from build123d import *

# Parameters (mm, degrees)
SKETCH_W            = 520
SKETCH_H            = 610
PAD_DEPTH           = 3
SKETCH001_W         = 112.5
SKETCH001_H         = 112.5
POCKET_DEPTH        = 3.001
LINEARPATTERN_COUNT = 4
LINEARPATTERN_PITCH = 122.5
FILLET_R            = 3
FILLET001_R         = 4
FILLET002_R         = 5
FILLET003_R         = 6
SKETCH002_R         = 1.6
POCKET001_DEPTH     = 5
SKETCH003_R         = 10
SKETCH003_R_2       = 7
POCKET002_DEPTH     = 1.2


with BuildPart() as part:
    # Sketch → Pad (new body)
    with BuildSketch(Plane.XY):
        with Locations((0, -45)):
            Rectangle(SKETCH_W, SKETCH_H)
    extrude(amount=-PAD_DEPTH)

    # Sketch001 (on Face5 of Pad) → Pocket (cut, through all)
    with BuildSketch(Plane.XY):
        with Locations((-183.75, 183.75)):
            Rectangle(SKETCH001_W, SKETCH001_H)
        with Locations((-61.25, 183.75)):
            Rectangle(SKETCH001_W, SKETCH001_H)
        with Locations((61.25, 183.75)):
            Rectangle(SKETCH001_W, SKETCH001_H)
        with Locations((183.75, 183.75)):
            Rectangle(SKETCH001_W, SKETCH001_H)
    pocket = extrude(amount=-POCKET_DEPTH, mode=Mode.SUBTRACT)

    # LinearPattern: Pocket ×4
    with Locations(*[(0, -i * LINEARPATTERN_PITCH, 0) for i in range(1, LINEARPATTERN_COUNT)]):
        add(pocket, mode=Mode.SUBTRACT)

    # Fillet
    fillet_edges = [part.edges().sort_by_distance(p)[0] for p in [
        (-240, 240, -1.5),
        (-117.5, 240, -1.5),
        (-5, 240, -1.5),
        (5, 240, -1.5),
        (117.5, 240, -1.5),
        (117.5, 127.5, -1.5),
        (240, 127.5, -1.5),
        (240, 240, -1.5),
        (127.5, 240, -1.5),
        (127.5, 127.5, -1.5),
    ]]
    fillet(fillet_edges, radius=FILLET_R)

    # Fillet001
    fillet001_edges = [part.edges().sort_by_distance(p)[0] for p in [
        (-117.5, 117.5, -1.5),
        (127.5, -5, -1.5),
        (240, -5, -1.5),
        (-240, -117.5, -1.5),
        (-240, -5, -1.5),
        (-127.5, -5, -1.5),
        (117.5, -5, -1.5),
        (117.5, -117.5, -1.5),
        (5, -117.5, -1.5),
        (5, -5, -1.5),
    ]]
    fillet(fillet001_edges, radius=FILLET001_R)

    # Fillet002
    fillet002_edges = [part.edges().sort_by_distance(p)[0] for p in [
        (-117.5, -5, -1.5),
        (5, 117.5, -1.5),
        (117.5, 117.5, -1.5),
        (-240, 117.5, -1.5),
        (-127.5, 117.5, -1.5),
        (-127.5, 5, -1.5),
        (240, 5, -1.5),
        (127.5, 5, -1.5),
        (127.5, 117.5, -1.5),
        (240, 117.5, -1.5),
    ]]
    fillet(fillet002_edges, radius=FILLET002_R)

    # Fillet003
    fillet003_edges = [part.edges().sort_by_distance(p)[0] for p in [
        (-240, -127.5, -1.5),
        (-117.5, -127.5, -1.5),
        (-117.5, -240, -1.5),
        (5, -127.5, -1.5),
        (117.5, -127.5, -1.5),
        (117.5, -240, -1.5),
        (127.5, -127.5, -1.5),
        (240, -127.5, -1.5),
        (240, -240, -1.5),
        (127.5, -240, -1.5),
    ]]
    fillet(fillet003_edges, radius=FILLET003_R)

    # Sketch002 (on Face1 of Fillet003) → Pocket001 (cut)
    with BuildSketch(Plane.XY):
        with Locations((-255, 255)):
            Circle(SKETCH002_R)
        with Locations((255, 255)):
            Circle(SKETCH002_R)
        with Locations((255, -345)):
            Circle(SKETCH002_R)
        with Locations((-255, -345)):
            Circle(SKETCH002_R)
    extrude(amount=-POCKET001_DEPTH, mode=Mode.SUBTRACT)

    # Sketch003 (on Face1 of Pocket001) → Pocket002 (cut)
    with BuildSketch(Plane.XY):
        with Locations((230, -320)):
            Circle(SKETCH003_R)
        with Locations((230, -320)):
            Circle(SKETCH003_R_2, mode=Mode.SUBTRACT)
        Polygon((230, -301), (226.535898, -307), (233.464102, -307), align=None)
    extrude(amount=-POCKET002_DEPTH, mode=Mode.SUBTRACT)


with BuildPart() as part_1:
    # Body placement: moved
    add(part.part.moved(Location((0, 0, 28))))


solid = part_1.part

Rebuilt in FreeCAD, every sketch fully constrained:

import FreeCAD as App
import Part
import Sketcher

V = App.Vector
Q = App.Units.Quantity


def edges_at(feature, points):
    """Names of the edges that pass closest to the given points."""
    edges = feature.Shape.Edges
    near = lambda p: min(range(len(edges)), key=lambda i: edges[i].distToShape(Part.Vertex(*p))[0])
    return sorted({f"Edge{near(p) + 1}" for p in points})

doc = App.newDocument("Part")
body = doc.addObject("PartDesign::Body", "Body")

# Sketch on XY plane
sketch1 = body.newObject("Sketcher::SketchObject", "Sketch")
sketch1.AttachmentSupport = (doc.getObject("XY_Plane"), [""])
sketch1.MapMode = "FlatFace"
sketch1.addGeometry([
    Part.LineSegment(V(-260, 260, 0), V(-260, -350, 0)),
    Part.LineSegment(V(-260, -350, 0), V(260, -350, 0)),
    Part.LineSegment(V(260, -350, 0), V(260, 260, 0)),
    Part.LineSegment(V(260, 260, 0), V(-260, 260, 0)),
], False)
sketch1.addConstraint([
    Sketcher.Constraint("Coincident", 0, 2, 1, 1),
    Sketcher.Constraint("Coincident", 1, 2, 2, 1),
    Sketcher.Constraint("Coincident", 2, 2, 3, 1),
    Sketcher.Constraint("Coincident", 3, 2, 0, 1),
    Sketcher.Constraint("Vertical", 0),
    Sketcher.Constraint("Horizontal", 1),
    Sketcher.Constraint("Vertical", 2),
    Sketcher.Constraint("Horizontal", 3),
    Sketcher.Constraint("DistanceX", 1, 1, 1, 2, Q("520 mm")),
    Sketcher.Constraint("DistanceY", 0, 2, 0, 1, Q("610 mm")),
    Sketcher.Constraint("DistanceX", 0, 2, -1, 1, Q("260 mm")),
    Sketcher.Constraint("DistanceY", 0, 2, -1, 1, Q("350 mm")),
])
pad1 = body.newObject("PartDesign::Pad", "Pad")
pad1.Profile = sketch1
pad1.Length = 3
pad1.Reversed = True

# Sketch on XY plane
sketch2 = body.newObject("Sketcher::SketchObject", "Sketch001")
sketch2.AttachmentSupport = (doc.getObject("XY_Plane"), [""])
sketch2.MapMode = "FlatFace"
sketch2.addGeometry([
    Part.LineSegment(V(-240, 240, 0), V(-240, 128, 0)),  # 0
    Part.LineSegment(V(-240, 128, 0), V(-128, 128, 0)),  # 1
    Part.LineSegment(V(-128, 128, 0), V(-128, 240, 0)),  # 2
    Part.LineSegment(V(-128, 240, 0), V(-240, 240, 0)),  # 3
    Part.LineSegment(V(-118, 240, 0), V(-118, 128, 0)),  # 4
    Part.LineSegment(V(-118, 128, 0), V(-5, 128, 0)),  # 5
    Part.LineSegment(V(-5, 128, 0), V(-5, 240, 0)),  # 6
    Part.LineSegment(V(-5, 240, 0), V(-118, 240, 0)),  # 7
    Part.LineSegment(V(5, 240, 0), V(5, 128, 0)),  # 8
    Part.LineSegment(V(5, 128, 0), V(118, 128, 0)),  # 9
    Part.LineSegment(V(118, 128, 0), V(118, 240, 0)),  # 10
    Part.LineSegment(V(118, 240, 0), V(5, 240, 0)),  # 11
    Part.LineSegment(V(128, 240, 0), V(128, 128, 0)),  # 12
    Part.LineSegment(V(128, 128, 0), V(240, 128, 0)),  # 13
    Part.LineSegment(V(240, 128, 0), V(240, 240, 0)),  # 14
    Part.LineSegment(V(240, 240, 0), V(128, 240, 0)),  # 15
], False)
sketch2.addConstraint([
    Sketcher.Constraint("Coincident", 0, 2, 1, 1),
    Sketcher.Constraint("Coincident", 1, 2, 2, 1),
    Sketcher.Constraint("Coincident", 2, 2, 3, 1),
    Sketcher.Constraint("Coincident", 3, 2, 0, 1),
    Sketcher.Constraint("Coincident", 4, 2, 5, 1),
    Sketcher.Constraint("Coincident", 5, 2, 6, 1),
    Sketcher.Constraint("Coincident", 6, 2, 7, 1),
    Sketcher.Constraint("Coincident", 7, 2, 4, 1),
    Sketcher.Constraint("Coincident", 8, 2, 9, 1),
    Sketcher.Constraint("Coincident", 9, 2, 10, 1),
    Sketcher.Constraint("Coincident", 10, 2, 11, 1),
    Sketcher.Constraint("Coincident", 11, 2, 8, 1),
    Sketcher.Constraint("Coincident", 12, 2, 13, 1),
    Sketcher.Constraint("Coincident", 13, 2, 14, 1),
    Sketcher.Constraint("Coincident", 14, 2, 15, 1),
    Sketcher.Constraint("Coincident", 15, 2, 12, 1),
    Sketcher.Constraint("Vertical", 0),
    Sketcher.Constraint("Horizontal", 1),
    Sketcher.Constraint("Vertical", 2),
    Sketcher.Constraint("Horizontal", 3),
    Sketcher.Constraint("Vertical", 4),
    Sketcher.Constraint("Horizontal", 5),
    Sketcher.Constraint("Vertical", 6),
    Sketcher.Constraint("Horizontal", 7),
    Sketcher.Constraint("Vertical", 8),
    Sketcher.Constraint("Horizontal", 9),
    Sketcher.Constraint("Vertical", 10),
    Sketcher.Constraint("Horizontal", 11),
    Sketcher.Constraint("Vertical", 12),
    Sketcher.Constraint("Horizontal", 13),
    Sketcher.Constraint("Vertical", 14),
    Sketcher.Constraint("Horizontal", 15),
    Sketcher.Constraint("Symmetric", 5, 2, 8, 2, -2),
    Sketcher.Constraint("Symmetric", 7, 2, 10, 2, -2),
    Sketcher.Constraint("Symmetric", 1, 2, 12, 2, -2),
    Sketcher.Constraint("Symmetric", 3, 2, 14, 2, -2),
    Sketcher.Constraint("Horizontal", 1, 2, 4, 2),
    Sketcher.Constraint("Horizontal", 3, 2, 6, 2),
    Sketcher.Constraint("Equal", 3, 5),
    Sketcher.Constraint("Equal", 15, 0),
    Sketcher.Constraint("DistanceX", 1, 1, 1, 2, Q("112.5 mm")),
    Sketcher.Constraint("DistanceX", 0, 2, -1, 1, Q("240 mm")),
    Sketcher.Constraint("DistanceY", -1, 1, 2, 2, Q("240 mm")),
    Sketcher.Constraint("DistanceX", 5, 2, -1, 1, Q("5 mm")),
])
pocket1 = body.newObject("PartDesign::Pocket", "Pocket")
pocket1.Profile = sketch2
pocket1.Type = "ThroughAll"
doc.recompute()

linearpattern = body.newObject("PartDesign::LinearPattern", "LinearPattern")
linearpattern.Originals = [pocket1]
linearpattern.Direction = (doc.getObject("Y_Axis"), [""])
linearpattern.Mode = "offset"
linearpattern.Offset = 122.5
linearpattern.Occurrences = 4
linearpattern.Reversed = True
body.Tip = linearpattern
doc.recompute()

fillet = body.newObject("PartDesign::Fillet", "Fillet")
fillet.Base = (linearpattern, edges_at(linearpattern, [
    (-240, 240, -1.5),
    (-117.5, 240, -1.5),
    (-5, 240, -1.5),
    (5, 240, -1.5),
    (117.5, 240, -1.5),
    (117.5, 127.5, -1.5),
    (240, 127.5, -1.5),
    (240, 240, -1.5),
    (127.5, 240, -1.5),
    (127.5, 127.5, -1.5),
]))
fillet.Radius = 3
doc.recompute()

fillet2 = body.newObject("PartDesign::Fillet", "Fillet001")
fillet2.Base = (fillet, edges_at(fillet, [
    (-117.5, 117.5, -1.5),
    (127.5, -5, -1.5),
    (240, -5, -1.5),
    (-240, -117.5, -1.5),
    (-240, -5, -1.5),
    (-127.5, -5, -1.5),
    (117.5, -5, -1.5),
    (117.5, -117.5, -1.5),
    (5, -117.5, -1.5),
    (5, -5, -1.5),
]))
fillet2.Radius = 4
doc.recompute()

fillet3 = body.newObject("PartDesign::Fillet", "Fillet002")
fillet3.Base = (fillet2, edges_at(fillet2, [
    (-117.5, -5, -1.5),
    (5, 117.5, -1.5),
    (117.5, 117.5, -1.5),
    (-240, 117.5, -1.5),
    (-127.5, 117.5, -1.5),
    (-127.5, 5, -1.5),
    (240, 5, -1.5),
    (127.5, 5, -1.5),
    (127.5, 117.5, -1.5),
    (240, 117.5, -1.5),
]))
fillet3.Radius = 5
doc.recompute()

fillet4 = body.newObject("PartDesign::Fillet", "Fillet003")
fillet4.Base = (fillet3, edges_at(fillet3, [
    (-240, -127.5, -1.5),
    (-117.5, -127.5, -1.5),
    (-117.5, -240, -1.5),
    (5, -127.5, -1.5),
    (117.5, -127.5, -1.5),
    (117.5, -240, -1.5),
    (127.5, -127.5, -1.5),
    (240, -127.5, -1.5),
    (240, -240, -1.5),
    (127.5, -240, -1.5),
]))
fillet4.Radius = 6

# Sketch on XY plane
sketch3 = body.newObject("Sketcher::SketchObject", "Sketch002")
sketch3.AttachmentSupport = (doc.getObject("XY_Plane"), [""])
sketch3.MapMode = "FlatFace"
sketch3.addGeometry([
    Part.Circle(V(-255, 255, 0), V(0, 0, 1), 1.6),
    Part.Circle(V(255, 255, 0), V(0, 0, 1), 1.6),
    Part.Circle(V(255, -345, 0), V(0, 0, 1), 1.6),
    Part.Circle(V(-255, -345, 0), V(0, 0, 1), 1.6),
], False)
sketch3.addConstraint([
    Sketcher.Constraint("Equal", 0, 1),
    Sketcher.Constraint("Equal", 1, 2),
    Sketcher.Constraint("Equal", 2, 3),
    Sketcher.Constraint("Symmetric", 0, 3, 1, 3, -2),
    Sketcher.Constraint("Symmetric", 2, 3, 3, 3, -2),
    Sketcher.Constraint("Vertical", 1, 3, 2, 3),
    Sketcher.Constraint("Diameter", 0, Q("3.2 mm")),
    Sketcher.Constraint("DistanceX", 0, 3, -1, 1, Q("255 mm")),
    Sketcher.Constraint("DistanceY", -1, 1, 0, 3, Q("255 mm")),
    Sketcher.Constraint("DistanceY", 2, 3, -1, 1, Q("345 mm")),
])
pocket2 = body.newObject("PartDesign::Pocket", "Pocket001")
pocket2.Profile = sketch3
pocket2.Length = 5

# Sketch on XY plane
sketch4 = body.newObject("Sketcher::SketchObject", "Sketch003")
sketch4.AttachmentSupport = (doc.getObject("XY_Plane"), [""])
sketch4.MapMode = "FlatFace"
sketch4.addGeometry([
    Part.Circle(V(230, -320, 0), V(0, 0, 1), 10),  # 0
    Part.Circle(V(230, -320, 0), V(0, 0, 1), 7),  # 1
    Part.LineSegment(V(230, -301, 0), V(227, -307, 0)),  # 2
    Part.LineSegment(V(227, -307, 0), V(233, -307, 0)),  # 3
    Part.LineSegment(V(233, -307, 0), V(230, -301, 0)),  # 4
], False)
sketch4.addConstraint([
    Sketcher.Constraint("Coincident", 2, 2, 3, 1),
    Sketcher.Constraint("Coincident", 3, 2, 4, 1),
    Sketcher.Constraint("Coincident", 4, 2, 2, 1),
    Sketcher.Constraint("Horizontal", 3),
    Sketcher.Constraint("Coincident", 1, 3, 0, 3),
    Sketcher.Constraint("Vertical", 1, 3, 4, 2),
    Sketcher.Constraint("Equal", 2, 4),
    Sketcher.Constraint("Diameter", 0, Q("20 mm")),
    Sketcher.Constraint("Diameter", 1, Q("14 mm")),
    Sketcher.Constraint("Angle", 2, Q("-120.000003 deg")),
    Sketcher.Constraint("DistanceX", -1, 1, 0, 3, Q("230 mm")),
    Sketcher.Constraint("DistanceY", 0, 3, -1, 1, Q("320 mm")),
    Sketcher.Constraint("DistanceY", 2, 2, -1, 1, Q("307 mm")),
    Sketcher.Constraint("DistanceY", 4, 2, -1, 1, Q("301 mm")),
])
pocket3 = body.newObject("PartDesign::Pocket", "Pocket002")
pocket3.Profile = sketch4
pocket3.Length = 1.2
body2 = doc.addObject("PartDesign::Body", "Body001")
doc.recompute()

body.Placement = App.Placement(V(0, 0, 28), App.Rotation(V(0, 0, 1), 0))
boolean = body2.newObject("PartDesign::Boolean", "Boolean")
boolean.Type = "Fuse"
boolean.addObjects([body])

doc.recompute()
